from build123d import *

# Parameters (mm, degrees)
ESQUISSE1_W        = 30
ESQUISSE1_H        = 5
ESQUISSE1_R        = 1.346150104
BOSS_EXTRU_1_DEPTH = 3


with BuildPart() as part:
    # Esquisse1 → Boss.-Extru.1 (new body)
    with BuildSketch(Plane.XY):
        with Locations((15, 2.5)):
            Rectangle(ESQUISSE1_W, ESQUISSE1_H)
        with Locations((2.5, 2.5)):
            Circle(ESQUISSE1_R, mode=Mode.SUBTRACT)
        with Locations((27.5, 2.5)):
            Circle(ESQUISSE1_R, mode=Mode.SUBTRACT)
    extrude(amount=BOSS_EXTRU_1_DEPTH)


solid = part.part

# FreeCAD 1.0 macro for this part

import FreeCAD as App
import Part
import Sketcher

V = App.Vector
Q = App.Units.Quantity


def add_polygon(sketch, points):
    """Adds a closed chain of lines whose ends are joined by coincident constraints."""
    first, n = sketch.GeometryCount, len(points)
    for a, b in zip(points, points[1:] + points[:1]):
        sketch.addGeometry(Part.LineSegment(App.Vector(*a, 0), App.Vector(*b, 0)), False)
    for i in range(n):
        sketch.addConstraint(Sketcher.Constraint("Coincident", first + i, 2, first + (i + 1) % n, 1))

doc = App.newDocument("Part")
body = doc.addObject("PartDesign::Body", "Body")

sketch1 = doc.addObject("Sketcher::SketchObject", "Sketch")
body.addObject(sketch1)
sketch1.AttachmentSupport = (doc.XY_Plane, [""])
sketch1.MapMode = "FlatFace"
add_polygon(sketch1, [(0, 5), (0, 0), (30, 0), (30, 5)])
sketch1.addGeometry(Part.Circle(V(2.5, 2.5, 0), V(0, 0, 1), 1.3), False)
sketch1.addGeometry(Part.Circle(V(27.5, 2.5, 0), V(0, 0, 1), 1.3), False)
sketch1.addConstraint([
    Sketcher.Constraint("Vertical", 0),
    Sketcher.Constraint("Horizontal", 1),
    Sketcher.Constraint("Vertical", 2),
    Sketcher.Constraint("Horizontal", 3),
    Sketcher.Constraint("Coincident", 0, 2, -1, 1),
    Sketcher.Constraint("Equal", 4, 5),
    Sketcher.Constraint("Horizontal", 4, 3, 5, 3),
    Sketcher.Constraint("DistanceX", 1, 1, 1, 2, Q("30 mm")),
    Sketcher.Constraint("DistanceY", 0, 2, 0, 1, Q("5 mm")),
    Sketcher.Constraint("DistanceX", 4, 3, 5, 3, Q("25 mm")),
    Sketcher.Constraint("Diameter", 4, Q("2.6923 mm")),
    Sketcher.Constraint("DistanceX", -1, 1, 4, 3, Q("2.5 mm")),
    Sketcher.Constraint("DistanceY", -1, 1, 4, 3, Q("2.5 mm")),
])
pad1 = doc.addObject("PartDesign::Pad", "Pad")
body.addObject(pad1)
pad1.Profile = sketch1
pad1.Length = 3

doc.recompute()
